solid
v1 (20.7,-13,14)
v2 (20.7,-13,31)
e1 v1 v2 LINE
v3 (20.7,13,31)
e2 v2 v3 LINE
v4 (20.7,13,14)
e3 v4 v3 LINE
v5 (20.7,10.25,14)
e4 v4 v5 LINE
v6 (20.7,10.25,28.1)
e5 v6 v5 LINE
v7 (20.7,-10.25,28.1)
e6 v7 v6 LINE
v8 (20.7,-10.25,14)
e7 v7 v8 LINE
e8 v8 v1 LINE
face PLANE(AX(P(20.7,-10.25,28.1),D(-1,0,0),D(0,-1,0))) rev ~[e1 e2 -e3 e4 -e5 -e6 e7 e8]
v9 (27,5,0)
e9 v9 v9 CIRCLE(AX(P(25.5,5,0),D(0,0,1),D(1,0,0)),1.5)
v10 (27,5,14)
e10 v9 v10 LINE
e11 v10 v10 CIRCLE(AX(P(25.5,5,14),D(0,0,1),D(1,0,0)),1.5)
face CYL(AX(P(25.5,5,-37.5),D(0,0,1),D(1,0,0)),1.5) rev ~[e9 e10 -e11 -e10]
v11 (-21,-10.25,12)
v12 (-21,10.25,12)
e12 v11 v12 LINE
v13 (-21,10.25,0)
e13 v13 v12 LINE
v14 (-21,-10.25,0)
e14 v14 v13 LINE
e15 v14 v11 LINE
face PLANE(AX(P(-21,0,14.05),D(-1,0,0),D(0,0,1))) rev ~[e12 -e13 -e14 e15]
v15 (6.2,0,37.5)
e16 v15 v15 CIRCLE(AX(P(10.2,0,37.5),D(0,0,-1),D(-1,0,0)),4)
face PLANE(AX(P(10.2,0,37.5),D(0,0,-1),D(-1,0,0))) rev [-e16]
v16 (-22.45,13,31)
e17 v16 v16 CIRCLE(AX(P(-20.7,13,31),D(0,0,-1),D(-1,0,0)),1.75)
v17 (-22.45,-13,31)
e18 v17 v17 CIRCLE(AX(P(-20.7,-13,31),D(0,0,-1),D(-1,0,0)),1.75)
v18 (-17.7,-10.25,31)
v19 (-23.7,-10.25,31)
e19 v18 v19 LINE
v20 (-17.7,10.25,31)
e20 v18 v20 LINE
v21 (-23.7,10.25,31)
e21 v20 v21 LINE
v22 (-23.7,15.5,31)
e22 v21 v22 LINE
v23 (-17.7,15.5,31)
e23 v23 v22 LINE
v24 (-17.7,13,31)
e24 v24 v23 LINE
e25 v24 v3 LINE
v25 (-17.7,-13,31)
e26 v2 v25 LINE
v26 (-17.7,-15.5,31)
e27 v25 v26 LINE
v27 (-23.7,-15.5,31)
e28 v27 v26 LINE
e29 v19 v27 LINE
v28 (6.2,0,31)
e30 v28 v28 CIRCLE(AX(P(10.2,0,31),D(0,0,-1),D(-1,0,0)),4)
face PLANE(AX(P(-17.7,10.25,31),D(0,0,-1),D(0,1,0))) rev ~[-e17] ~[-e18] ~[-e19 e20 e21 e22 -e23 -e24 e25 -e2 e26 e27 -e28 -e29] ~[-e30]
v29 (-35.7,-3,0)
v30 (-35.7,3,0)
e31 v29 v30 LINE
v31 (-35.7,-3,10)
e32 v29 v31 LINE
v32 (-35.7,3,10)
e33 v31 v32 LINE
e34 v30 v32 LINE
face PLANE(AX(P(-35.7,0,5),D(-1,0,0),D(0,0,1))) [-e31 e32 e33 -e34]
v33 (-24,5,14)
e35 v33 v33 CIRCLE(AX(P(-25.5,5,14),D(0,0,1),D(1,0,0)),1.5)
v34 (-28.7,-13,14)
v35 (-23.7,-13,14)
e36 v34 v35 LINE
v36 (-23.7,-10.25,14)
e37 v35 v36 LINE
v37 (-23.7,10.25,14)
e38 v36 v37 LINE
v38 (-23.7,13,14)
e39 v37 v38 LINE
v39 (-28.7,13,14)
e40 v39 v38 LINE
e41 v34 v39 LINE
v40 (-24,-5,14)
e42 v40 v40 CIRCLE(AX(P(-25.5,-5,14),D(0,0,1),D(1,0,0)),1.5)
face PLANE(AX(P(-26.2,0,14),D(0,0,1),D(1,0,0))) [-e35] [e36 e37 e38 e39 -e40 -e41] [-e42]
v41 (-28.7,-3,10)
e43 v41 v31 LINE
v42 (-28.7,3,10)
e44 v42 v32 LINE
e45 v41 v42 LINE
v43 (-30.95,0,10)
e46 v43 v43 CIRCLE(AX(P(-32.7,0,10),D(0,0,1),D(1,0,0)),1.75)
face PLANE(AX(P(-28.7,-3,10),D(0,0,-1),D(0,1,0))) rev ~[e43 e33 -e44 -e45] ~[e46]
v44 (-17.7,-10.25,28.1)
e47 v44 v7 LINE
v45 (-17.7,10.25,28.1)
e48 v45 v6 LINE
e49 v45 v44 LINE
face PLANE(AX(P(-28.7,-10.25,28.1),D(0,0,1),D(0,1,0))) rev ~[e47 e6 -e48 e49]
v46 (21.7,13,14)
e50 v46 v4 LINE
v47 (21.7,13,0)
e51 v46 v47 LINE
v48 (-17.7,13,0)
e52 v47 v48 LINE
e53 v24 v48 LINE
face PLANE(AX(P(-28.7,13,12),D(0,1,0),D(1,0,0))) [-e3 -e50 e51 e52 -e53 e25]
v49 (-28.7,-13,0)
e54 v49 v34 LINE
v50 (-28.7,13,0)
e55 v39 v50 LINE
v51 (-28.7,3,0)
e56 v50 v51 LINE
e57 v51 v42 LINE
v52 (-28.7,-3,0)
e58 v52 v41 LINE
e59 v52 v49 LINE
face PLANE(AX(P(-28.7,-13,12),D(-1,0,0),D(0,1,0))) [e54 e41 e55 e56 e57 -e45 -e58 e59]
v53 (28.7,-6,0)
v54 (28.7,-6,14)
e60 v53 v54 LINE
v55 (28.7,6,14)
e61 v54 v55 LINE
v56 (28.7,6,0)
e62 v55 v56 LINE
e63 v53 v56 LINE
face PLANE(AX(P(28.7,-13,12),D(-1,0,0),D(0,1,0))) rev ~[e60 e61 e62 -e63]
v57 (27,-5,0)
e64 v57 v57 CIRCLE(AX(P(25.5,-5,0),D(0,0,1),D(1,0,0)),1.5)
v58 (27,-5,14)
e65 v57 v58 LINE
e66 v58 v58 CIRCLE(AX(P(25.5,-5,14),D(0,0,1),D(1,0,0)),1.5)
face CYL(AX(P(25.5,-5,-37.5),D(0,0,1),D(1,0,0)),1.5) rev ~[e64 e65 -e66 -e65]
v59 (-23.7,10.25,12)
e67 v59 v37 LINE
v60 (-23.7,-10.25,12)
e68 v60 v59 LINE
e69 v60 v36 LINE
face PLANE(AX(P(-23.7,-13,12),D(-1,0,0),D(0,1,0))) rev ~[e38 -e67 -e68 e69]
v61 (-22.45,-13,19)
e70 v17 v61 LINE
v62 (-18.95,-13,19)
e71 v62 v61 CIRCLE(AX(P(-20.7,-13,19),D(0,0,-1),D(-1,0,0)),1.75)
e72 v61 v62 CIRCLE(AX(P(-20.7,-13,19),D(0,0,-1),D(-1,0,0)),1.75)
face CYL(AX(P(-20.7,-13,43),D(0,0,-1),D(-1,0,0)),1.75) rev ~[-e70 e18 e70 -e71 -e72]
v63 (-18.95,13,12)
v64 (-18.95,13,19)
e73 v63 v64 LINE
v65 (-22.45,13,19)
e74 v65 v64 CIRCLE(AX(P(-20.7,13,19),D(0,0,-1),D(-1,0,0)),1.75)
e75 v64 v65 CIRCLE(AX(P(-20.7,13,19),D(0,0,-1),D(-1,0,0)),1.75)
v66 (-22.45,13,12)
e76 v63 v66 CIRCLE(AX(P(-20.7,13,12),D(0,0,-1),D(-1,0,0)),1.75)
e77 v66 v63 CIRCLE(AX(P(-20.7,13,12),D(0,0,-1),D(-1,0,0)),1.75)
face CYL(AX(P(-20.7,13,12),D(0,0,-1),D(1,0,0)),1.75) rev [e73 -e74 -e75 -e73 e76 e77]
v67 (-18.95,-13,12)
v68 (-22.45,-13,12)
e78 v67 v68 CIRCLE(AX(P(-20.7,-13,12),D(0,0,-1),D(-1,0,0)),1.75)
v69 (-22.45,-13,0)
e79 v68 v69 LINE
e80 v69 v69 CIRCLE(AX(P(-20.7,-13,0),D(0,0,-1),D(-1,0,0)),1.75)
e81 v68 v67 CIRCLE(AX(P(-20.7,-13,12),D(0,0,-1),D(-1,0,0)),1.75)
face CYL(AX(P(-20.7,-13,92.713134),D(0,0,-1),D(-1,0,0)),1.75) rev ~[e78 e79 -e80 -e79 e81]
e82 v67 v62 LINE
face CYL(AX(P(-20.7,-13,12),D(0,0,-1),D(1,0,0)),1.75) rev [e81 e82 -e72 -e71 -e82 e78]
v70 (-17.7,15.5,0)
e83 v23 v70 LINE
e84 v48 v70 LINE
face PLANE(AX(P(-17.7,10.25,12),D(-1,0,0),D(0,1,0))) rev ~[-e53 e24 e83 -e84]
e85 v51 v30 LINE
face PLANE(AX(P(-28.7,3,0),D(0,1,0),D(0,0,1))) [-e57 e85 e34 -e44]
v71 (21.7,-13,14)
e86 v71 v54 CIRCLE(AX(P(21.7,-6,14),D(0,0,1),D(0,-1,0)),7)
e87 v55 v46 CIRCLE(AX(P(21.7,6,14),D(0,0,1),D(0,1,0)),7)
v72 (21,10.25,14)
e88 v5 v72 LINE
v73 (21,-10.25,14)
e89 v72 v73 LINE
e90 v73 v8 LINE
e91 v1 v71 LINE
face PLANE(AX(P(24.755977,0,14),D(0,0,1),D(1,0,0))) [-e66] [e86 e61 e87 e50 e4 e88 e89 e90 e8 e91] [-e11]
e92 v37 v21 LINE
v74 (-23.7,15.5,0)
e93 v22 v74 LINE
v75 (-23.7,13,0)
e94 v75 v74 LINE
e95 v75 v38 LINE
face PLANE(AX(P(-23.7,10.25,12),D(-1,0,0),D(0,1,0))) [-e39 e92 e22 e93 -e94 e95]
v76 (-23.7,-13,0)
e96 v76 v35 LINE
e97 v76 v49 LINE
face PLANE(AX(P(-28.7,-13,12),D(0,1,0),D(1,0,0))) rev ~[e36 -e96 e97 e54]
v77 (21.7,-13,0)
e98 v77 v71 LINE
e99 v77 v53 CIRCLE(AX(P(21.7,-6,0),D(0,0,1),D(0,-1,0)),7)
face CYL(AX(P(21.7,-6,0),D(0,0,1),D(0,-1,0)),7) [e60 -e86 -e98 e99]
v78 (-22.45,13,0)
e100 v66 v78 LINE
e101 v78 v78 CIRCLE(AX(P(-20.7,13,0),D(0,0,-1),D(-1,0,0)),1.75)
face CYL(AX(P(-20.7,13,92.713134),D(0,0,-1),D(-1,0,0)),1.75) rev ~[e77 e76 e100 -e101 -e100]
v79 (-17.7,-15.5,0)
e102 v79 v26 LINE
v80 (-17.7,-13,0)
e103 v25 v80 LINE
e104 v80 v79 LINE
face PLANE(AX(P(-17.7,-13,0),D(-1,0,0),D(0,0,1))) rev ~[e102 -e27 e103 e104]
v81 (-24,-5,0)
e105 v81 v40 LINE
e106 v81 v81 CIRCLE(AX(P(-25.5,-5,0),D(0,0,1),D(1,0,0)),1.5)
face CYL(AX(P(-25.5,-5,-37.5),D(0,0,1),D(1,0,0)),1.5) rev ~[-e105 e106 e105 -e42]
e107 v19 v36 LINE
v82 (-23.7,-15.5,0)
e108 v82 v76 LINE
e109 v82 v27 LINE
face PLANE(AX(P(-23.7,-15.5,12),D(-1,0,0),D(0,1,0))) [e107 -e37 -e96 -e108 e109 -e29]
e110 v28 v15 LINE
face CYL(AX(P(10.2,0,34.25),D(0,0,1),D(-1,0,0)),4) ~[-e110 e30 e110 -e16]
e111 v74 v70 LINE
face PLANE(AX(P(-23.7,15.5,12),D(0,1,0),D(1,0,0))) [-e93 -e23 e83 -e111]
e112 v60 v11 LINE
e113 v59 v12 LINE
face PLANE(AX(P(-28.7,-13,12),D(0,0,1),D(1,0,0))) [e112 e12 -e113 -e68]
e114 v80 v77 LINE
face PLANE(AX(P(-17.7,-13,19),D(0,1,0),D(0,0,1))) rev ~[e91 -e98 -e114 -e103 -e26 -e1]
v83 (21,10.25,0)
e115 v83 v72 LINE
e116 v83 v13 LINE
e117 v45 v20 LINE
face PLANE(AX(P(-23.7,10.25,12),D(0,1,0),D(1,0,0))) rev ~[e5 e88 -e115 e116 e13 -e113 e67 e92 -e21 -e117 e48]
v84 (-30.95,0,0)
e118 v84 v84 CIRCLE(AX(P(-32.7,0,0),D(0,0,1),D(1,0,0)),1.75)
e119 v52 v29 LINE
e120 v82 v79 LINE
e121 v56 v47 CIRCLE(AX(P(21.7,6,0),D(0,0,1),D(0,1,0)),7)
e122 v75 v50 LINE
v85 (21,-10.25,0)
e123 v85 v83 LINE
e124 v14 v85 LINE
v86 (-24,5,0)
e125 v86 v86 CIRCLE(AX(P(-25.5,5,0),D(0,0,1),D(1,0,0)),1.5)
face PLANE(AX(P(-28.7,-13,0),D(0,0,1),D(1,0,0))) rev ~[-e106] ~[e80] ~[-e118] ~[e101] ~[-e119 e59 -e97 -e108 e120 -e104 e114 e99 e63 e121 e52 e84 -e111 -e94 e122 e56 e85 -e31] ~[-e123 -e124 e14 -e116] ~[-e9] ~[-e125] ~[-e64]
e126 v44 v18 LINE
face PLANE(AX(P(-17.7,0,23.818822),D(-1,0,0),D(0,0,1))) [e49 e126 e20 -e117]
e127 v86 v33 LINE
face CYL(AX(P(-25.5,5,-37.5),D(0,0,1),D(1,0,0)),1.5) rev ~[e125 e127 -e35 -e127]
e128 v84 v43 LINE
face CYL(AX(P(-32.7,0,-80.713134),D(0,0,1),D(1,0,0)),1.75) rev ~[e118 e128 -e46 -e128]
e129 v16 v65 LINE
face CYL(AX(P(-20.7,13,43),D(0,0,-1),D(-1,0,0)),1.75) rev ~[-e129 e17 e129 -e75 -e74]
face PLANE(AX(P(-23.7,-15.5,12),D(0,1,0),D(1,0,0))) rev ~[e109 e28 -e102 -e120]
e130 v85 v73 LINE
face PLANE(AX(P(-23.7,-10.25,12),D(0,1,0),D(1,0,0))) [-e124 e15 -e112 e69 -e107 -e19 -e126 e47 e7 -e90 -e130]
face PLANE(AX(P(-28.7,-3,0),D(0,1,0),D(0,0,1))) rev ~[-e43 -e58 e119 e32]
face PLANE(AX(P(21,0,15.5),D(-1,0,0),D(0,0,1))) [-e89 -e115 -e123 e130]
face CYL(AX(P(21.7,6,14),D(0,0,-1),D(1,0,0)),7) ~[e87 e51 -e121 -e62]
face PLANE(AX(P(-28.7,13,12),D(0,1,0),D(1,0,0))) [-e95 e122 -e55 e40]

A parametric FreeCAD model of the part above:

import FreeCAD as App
import Part
import Sketcher
from FreeCAD import Vector
Q = App.Units.Quantity


def edges_at(feature, points):
    """Names of the edges that pass closest to the given points."""
    edges = feature.Shape.Edges
    near = lambda p: min(range(len(edges)), key=lambda i: edges[i].distToShape(Part.Vertex(*p))[0])
    return sorted({f"Edge{near(p) + 1}" for p in points})

doc = App.newDocument("Part")
params = doc.addObject("Spreadsheet::Sheet", "Params")
for row, (alias, value) in enumerate([
    ("sketch1_width", "57.4 mm"),
    ("sketch1_height", "28.5 mm"),
    ("pad1_length", "12 mm"),
    ("sketch2_height", "26 mm"),
    ("sketch2_width", "57.4 mm"),
    ("pad2_length", "19 mm"),
    ("sketch3_width", "20.5 mm"),
    ("sketch3_height", "16.1 mm"),
    ("pocket1_length", "7.7 mm"),
    ("sketch4_width", "20.5 mm"),
    ("sketch4_height", "28.1 mm"),
    ("pocket2_length", "41.7 mm"),
    ("sketch5_height", "31 mm"),
    ("sketch5_width", "20.5 mm"),
    ("pocket3_length", "0.3 mm"),
    ("sketch6_width", "8 mm"),
    ("sketch6_height", "26 mm"),
    ("sketch6_width2", "0.3 mm"),
    ("sketch6_height2", "20.5 mm"),
    ("pocket4_length", "2.9 mm"),
    ("sketch7_height", "12 mm"),
    ("sketch7_width", "2.5 mm"),
    ("pocket5_length", "46.4 mm"),
    ("sketch8_width", "26 mm"),
    ("sketch8_height", "19 mm"),
    ("sketch8_width2", "20.5 mm"),
    ("sketch8_height2", "16.1 mm"),
    ("pocket6_length", "7.7 mm"),
    ("sketch9_width", "8 mm"),
    ("sketch9_height", "26 mm"),
    ("sketch9_width2", "0.3 mm"),
    ("sketch9_height2", "20.5 mm"),
    ("pocket7_length", "14.1 mm"),
    ("sketch10_width", "26 mm"),
    ("sketch10_height", "19 mm"),
    ("sketch10_width2", "20.5 mm"),
    ("sketch10_height2", "16.1 mm"),
    ("pocket8_length", "3.3 mm"),
    ("sketch11_width", "11 mm"),
    ("sketch11_height", "12 mm"),
    ("pad3_length", "2.5 mm"),
    ("sketch12_height", "12 mm"),
    ("sketch12_width", "2.75 mm"),
    ("pad4_length", "6 mm"),
    ("sketch13_width", "6 mm"),
    ("sketch13_height", "12 mm"),
    ("pad5_length", "2.5 mm"),
    ("sketch14_height", "12 mm"),
    ("sketch14_width", "5.25 mm"),
    ("pad6_length", "6 mm"),
    ("sketch15_width", "5 mm"),
    ("sketch15_height", "2.5 mm"),
    ("sketch16_width", "5 mm"),
    ("sketch16_height", "2.5 mm"),
    ("sketch17_width", "5 mm"),
    ("sketch17_height", "26 mm"),
    ("pad7_length", "2 mm"),
    ("sketch18_width", "6 mm"),
    ("sketch18_height", "10 mm"),
    ("pad8_length", "7 mm"),
    ("sketch19_width", "4 mm"),
    ("sketch19_height", "6.5 mm"),
    ("revolution_angle", "360 deg"),
    ("sketch20_diameter", "3.5 mm"),
    ("hole_diameter", "3.5 mm"),
    ("hole_depth", "12 mm"),
    ("sketch21_diameter", "3.5 mm"),
    ("hole2_diameter", "3.5 mm"),
    ("sketch22_diameter", "3 mm"),
    ("hole3_diameter", "3 mm"),
    ("hole3_depth", "37.5 mm"),
    ("sketch23_diameter", "3.5 mm"),
    ("hole4_diameter", "3.5 mm"),
    ("fillet_radius", "7 mm"),
    ("sketch24_diameter", "3.5 mm"),
    ("sketch24_width", "6 mm"),
    ("sketch24_height", "5.25 mm"),
    ("pad9_length", "7 mm"),
], start=1):
    params.set(f"A{row}", alias)
    params.set(f"B{row}", "=" + value)
    params.setAlias(f"B{row}", alias)

body = doc.addObject("PartDesign::Body", "Body")

# Sketch on XY plane
sketch1 = doc.addObject("Sketcher::SketchObject", "Sketch")
body.addObject(sketch1)
sketch1.AttachmentSupport = (doc.XY_Plane, [""])
sketch1.MapMode = "FlatFace"
sketch1.AttachmentOffset = App.Placement(Vector(0, 0, 12), App.Rotation())
sketch1.addGeometry([
    Part.LineSegment(Vector(-28.7, 15.5, 0), Vector(-28.7, -13, 0)),
    Part.LineSegment(Vector(-28.7, -13, 0), Vector(28.7, -13, 0)),
    Part.LineSegment(Vector(28.7, -13, 0), Vector(28.7, 15.5, 0)),
    Part.LineSegment(Vector(28.7, 15.5, 0), Vector(-28.7, 15.5, 0)),
], False)
sketch1.addConstraint([
    Sketcher.Constraint("Coincident", 0, 2, 1, 1),
    Sketcher.Constraint("Coincident", 1, 2, 2, 1),
    Sketcher.Constraint("Coincident", 2, 2, 3, 1),
    Sketcher.Constraint("Coincident", 3, 2, 0, 1),
    Sketcher.Constraint("Vertical", 0),
    Sketcher.Constraint("Horizontal", 1),
    Sketcher.Constraint("Vertical", 2),
    Sketcher.Constraint("Horizontal", 3),
    Sketcher.Constraint("DistanceX", 1, 1, 1, 2, Q("57.4 mm")),
    Sketcher.Constraint("DistanceY", 0, 2, 0, 1, Q("28.5 mm")),
    Sketcher.Constraint("DistanceY", 0, 2, -1, 1, Q("13 mm")),
    Sketcher.Constraint("DistanceX", 0, 2, -1, 1, Q("28.7 mm")),
])
sketch1.setExpression("Constraints[8]", "Params.sketch1_width")
sketch1.setExpression("Constraints[9]", "Params.sketch1_height")
pad1 = doc.addObject("PartDesign::Pad", "Pad")
body.addObject(pad1)
pad1.Profile = sketch1
pad1.setExpression("Length", "Params.pad1_length")
pad1.Reversed = True

# Sketch on XY plane
sketch2 = doc.addObject("Sketcher::SketchObject", "Sketch001")
body.addObject(sketch2)
sketch2.AttachmentSupport = (doc.XY_Plane, [""])
sketch2.MapMode = "FlatFace"
sketch2.AttachmentOffset = App.Placement(Vector(0, 0, 12), App.Rotation())
sketch2.addGeometry([
    Part.LineSegment(Vector(-28.7, 13, 0), Vector(-28.7, -13, 0)),
    Part.LineSegment(Vector(-28.7, -13, 0), Vector(28.7, -13, 0)),
    Part.LineSegment(Vector(28.7, -13, 0), Vector(28.7, 13, 0)),
    Part.LineSegment(Vector(28.7, 13, 0), Vector(-28.7, 13, 0)),
], False)
sketch2.addConstraint([
    Sketcher.Constraint("Coincident", 0, 2, 1, 1),
    Sketcher.Constraint("Coincident", 1, 2, 2, 1),
    Sketcher.Constraint("Coincident", 2, 2, 3, 1),
    Sketcher.Constraint("Coincident", 3, 2, 0, 1),
    Sketcher.Constraint("Vertical", 0),
    Sketcher.Constraint("Horizontal", 1),
    Sketcher.Constraint("Vertical", 2),
    Sketcher.Constraint("Horizontal", 3),
    Sketcher.Constraint("Symmetric", 0, 2, 2, 2, -1, 1),
    Sketcher.Constraint("DistanceY", 0, 2, 0, 1, Q("26 mm")),
    Sketcher.Constraint("DistanceX", 1, 1, 1, 2, Q("57.4 mm")),
])
sketch2.setExpression("Constraints[9]", "Params.sketch2_height")
sketch2.setExpression("Constraints[10]", "Params.sketch2_width")
pad2 = doc.addObject("PartDesign::Pad", "Pad001")
body.addObject(pad2)
pad2.Profile = sketch2
pad2.setExpression("Length", "Params.pad2_length")

# Sketch on YZ plane
sketch3 = doc.addObject("Sketcher::SketchObject", "Sketch002")
body.addObject(sketch3)
sketch3.AttachmentSupport = (doc.YZ_Plane, [""])
sketch3.MapMode = "FlatFace"
sketch3.AttachmentOffset = App.Placement(Vector(0, 0, -28.7), App.Rotation())
sketch3.addGeometry([
    Part.LineSegment(Vector(10.25, 12, 0), Vector(-10.25, 12, 0)),
    Part.LineSegment(Vector(-10.25, 12, 0), Vector(-10.25, 28.1, 0)),
    Part.LineSegment(Vector(-10.25, 28.1, 0), Vector(10.25, 28.1, 0)),
    Part.LineSegment(Vector(10.25, 28.1, 0), Vector(10.25, 12, 0)),
], False)
sketch3.addConstraint([
    Sketcher.Constraint("Coincident", 0, 2, 1, 1),
    Sketcher.Constraint("Coincident", 1, 2, 2, 1),
    Sketcher.Constraint("Coincident", 2, 2, 3, 1),
    Sketcher.Constraint("Coincident", 3, 2, 0, 1),
    Sketcher.Constraint("Horizontal", 0),
    Sketcher.Constraint("Vertical", 1),
    Sketcher.Constraint("Horizontal", 2),
    Sketcher.Constraint("Vertical", 3),
    Sketcher.Constraint("DistanceX", 0, 2, 0, 1, Q("20.5 mm")),
    Sketcher.Constraint("DistanceY", 1, 1, 1, 2, Q("16.1 mm")),
    Sketcher.Constraint("DistanceY", -1, 1, 0, 2, Q("12 mm")),
    Sketcher.Constraint("DistanceX", 0, 2, -1, 1, Q("10.25 mm")),
])
sketch3.setExpression("Constraints[8]", "Params.sketch3_width")
sketch3.setExpression("Constraints[9]", "Params.sketch3_height")
pocket1 = doc.addObject("PartDesign::Pocket", "Pocket")
body.addObject(pocket1)
pocket1.Profile = sketch3
pocket1.setExpression("Length", "Params.pocket1_length")
pocket1.Reversed = True

# Sketch on YZ plane
sketch4 = doc.addObject("Sketcher::SketchObject", "Sketch003")
body.addObject(sketch4)
sketch4.AttachmentSupport = (doc.YZ_Plane, [""])
sketch4.MapMode = "FlatFace"
sketch4.AttachmentOffset = App.Placement(Vector(0, 0, -21), App.Rotation())
sketch4.addGeometry([
    Part.LineSegment(Vector(10.25, 0, 0), Vector(-10.25, 0, 0)),
    Part.LineSegment(Vector(-10.25, 0, 0), Vector(-10.25, 28.1, 0)),
    Part.LineSegment(Vector(-10.25, 28.1, 0), Vector(10.25, 28.1, 0)),
    Part.LineSegment(Vector(10.25, 28.1, 0), Vector(10.25, 0, 0)),
], False)
sketch4.addConstraint([
    Sketcher.Constraint("Coincident", 0, 2, 1, 1),
    Sketcher.Constraint("Coincident", 1, 2, 2, 1),
    Sketcher.Constraint("Coincident", 2, 2, 3, 1),
    Sketcher.Constraint("Coincident", 3, 2, 0, 1),
    Sketcher.Constraint("Horizontal", 0),
    Sketcher.Constraint("Vertical", 1),
    Sketcher.Constraint("Horizontal", 2),
    Sketcher.Constraint("Vertical", 3),
    Sketcher.Constraint("Symmetric", 0, 2, 3, 2, -1, 1),
    Sketcher.Constraint("DistanceX", 0, 2, 0, 1, Q("20.5 mm")),
    Sketcher.Constraint("DistanceY", 1, 1, 1, 2, Q("28.1 mm")),
])
sketch4.setExpression("Constraints[9]", "Params.sketch4_width")
sketch4.setExpression("Constraints[10]", "Params.sketch4_height")
pocket2 = doc.addObject("PartDesign::Pocket", "Pocket001")
body.addObject(pocket2)
pocket2.Profile = sketch4
pocket2.setExpression("Length", "Params.pocket2_length")
pocket2.Reversed = True

# Sketch on YZ plane
sketch5 = doc.addObject("Sketcher::SketchObject", "Sketch004")
body.addObject(sketch5)
sketch5.AttachmentSupport = (doc.YZ_Plane, [""])
sketch5.MapMode = "FlatFace"
sketch5.AttachmentOffset = App.Placement(Vector(0, 0, 20.7), App.Rotation())
sketch5.addGeometry([
    Part.LineSegment(Vector(10.25, 0, 0), Vector(-10.25, 0, 0)),
    Part.LineSegment(Vector(-10.25, 0, 0), Vector(-10.25, 31, 0)),
    Part.LineSegment(Vector(-10.25, 31, 0), Vector(10.25, 31, 0)),
    Part.LineSegment(Vector(10.25, 31, 0), Vector(10.25, 0, 0)),
], False)
sketch5.addConstraint([
    Sketcher.Constraint("Coincident", 0, 2, 1, 1),
    Sketcher.Constraint("Coincident", 1, 2, 2, 1),
    Sketcher.Constraint("Coincident", 2, 2, 3, 1),
    Sketcher.Constraint("Coincident", 3, 2, 0, 1),
    Sketcher.Constraint("Horizontal", 0),
    Sketcher.Constraint("Vertical", 1),
    Sketcher.Constraint("Horizontal", 2),
    Sketcher.Constraint("Vertical", 3),
    Sketcher.Constraint("Symmetric", 0, 2, 3, 2, -1, 1),
    Sketcher.Constraint("DistanceY", 1, 1, 1, 2, Q("31 mm")),
    Sketcher.Constraint("DistanceX", 0, 2, 0, 1, Q("20.5 mm")),
])
sketch5.setExpression("Constraints[9]", "Params.sketch5_height")
sketch5.setExpression("Constraints[10]", "Params.sketch5_width")
pocket3 = doc.addObject("PartDesign::Pocket", "Pocket002")
body.addObject(pocket3)
pocket3.Profile = sketch5
pocket3.setExpression("Length", "Params.pocket3_length")
pocket3.Reversed = True

# Sketch on XY plane
sketch6 = doc.addObject("Sketcher::SketchObject", "Sketch005")
body.addObject(sketch6)
sketch6.AttachmentSupport = (doc.XY_Plane, [""])
sketch6.MapMode = "FlatFace"
sketch6.AttachmentOffset = App.Placement(Vector(0, 0, 31), App.Rotation())
sketch6.addGeometry([
    Part.LineSegment(Vector(28.7, -13, 0), Vector(28.7, 13, 0)),  # 0
    Part.LineSegment(Vector(28.7, 13, 0), Vector(20.7, 13, 0)),  # 1
    Part.LineSegment(Vector(20.7, 13, 0), Vector(20.7, 10.25, 0)),  # 2
    Part.LineSegment(Vector(20.7, 10.25, 0), Vector(21, 10.25, 0)),  # 3
    Part.LineSegment(Vector(21, 10.25, 0), Vector(21, -10.25, 0)),  # 4
    Part.LineSegment(Vector(21, -10.25, 0), Vector(20.7, -10.25, 0)),  # 5
    Part.LineSegment(Vector(20.7, -10.25, 0), Vector(20.7, -13, 0)),  # 6
    Part.LineSegment(Vector(20.7, -13, 0), Vector(28.7, -13, 0)),  # 7
], False)
sketch6.addConstraint([
    Sketcher.Constraint("Coincident", 0, 2, 1, 1),
    Sketcher.Constraint("Coincident", 1, 2, 2, 1),
    Sketcher.Constraint("Coincident", 2, 2, 3, 1),
    Sketcher.Constraint("Coincident", 3, 2, 4, 1),
    Sketcher.Constraint("Coincident", 4, 2, 5, 1),
    Sketcher.Constraint("Coincident", 5, 2, 6, 1),
    Sketcher.Constraint("Coincident", 6, 2, 7, 1),
    Sketcher.Constraint("Coincident", 7, 2, 0, 1),
    Sketcher.Constraint("Vertical", 0),
    Sketcher.Constraint("Horizontal", 1),
    Sketcher.Constraint("Vertical", 2),
    Sketcher.Constraint("Horizontal", 3),
    Sketcher.Constraint("Vertical", 4),
    Sketcher.Constraint("Horizontal", 5),
    Sketcher.Constraint("Vertical", 6),
    Sketcher.Constraint("Horizontal", 7),
    Sketcher.Constraint("Symmetric", 2, 2, 5, 2, -1),
    Sketcher.Constraint("Equal", 2, 6),
    Sketcher.Constraint("DistanceX", 1, 2, 1, 1, Q("8 mm")),
    Sketcher.Constraint("DistanceY", 0, 1, 0, 2, Q("26 mm")),
    Sketcher.Constraint("DistanceX", 3, 1, 3, 2, Q("0.3 mm")),
    Sketcher.Constraint("DistanceY", 4, 2, 4, 1, Q("20.5 mm")),
    Sketcher.Constraint("DistanceX", -1, 1, 3, 2, Q("21 mm")),
])
sketch6.setExpression("Constraints[18]", "Params.sketch6_width")
sketch6.setExpression("Constraints[19]", "Params.sketch6_height")
sketch6.setExpression("Constraints[20]", "Params.sketch6_width2")
sketch6.setExpression("Constraints[21]", "Params.sketch6_height2")
pocket4 = doc.addObject("PartDesign::Pocket", "Pocket003")
body.addObject(pocket4)
pocket4.Profile = sketch6
pocket4.setExpression("Length", "Params.pocket4_length")

# Sketch on YZ plane
sketch7 = doc.addObject("Sketcher::SketchObject", "Sketch006")
body.addObject(sketch7)
sketch7.AttachmentSupport = (doc.YZ_Plane, [""])
sketch7.MapMode = "FlatFace"
sketch7.AttachmentOffset = App.Placement(Vector(0, 0, 28.7), App.Rotation())
sketch7.addGeometry([
    Part.LineSegment(Vector(15.5, 12, 0), Vector(13, 12, 0)),
    Part.LineSegment(Vector(13, 12, 0), Vector(13, 0, 0)),
    Part.LineSegment(Vector(13, 0, 0), Vector(15.5, 0, 0)),
    Part.LineSegment(Vector(15.5, 0, 0), Vector(15.5, 12, 0)),
], False)
sketch7.addConstraint([
    Sketcher.Constraint("Coincident", 0, 2, 1, 1),
    Sketcher.Constraint("Coincident", 1, 2, 2, 1),
    Sketcher.Constraint("Coincident", 2, 2, 3, 1),
    Sketcher.Constraint("Coincident", 3, 2, 0, 1),
    Sketcher.Constraint("Horizontal", 0),
    Sketcher.Constraint("Vertical", 1),
    Sketcher.Constraint("Horizontal", 2),
    Sketcher.Constraint("Vertical", 3),
    Sketcher.Constraint("PointOnObject", 1, 2, -1),
    Sketcher.Constraint("DistanceY", 1, 2, 1, 1, Q("12 mm")),
    Sketcher.Constraint("DistanceX", 0, 2, 0, 1, Q("2.5 mm")),
    Sketcher.Constraint("DistanceX", -1, 1, 0, 2, Q("13 mm")),
])
sketch7.setExpression("Constraints[9]", "Params.sketch7_height")
sketch7.setExpression("Constraints[10]", "Params.sketch7_width")
pocket5 = doc.addObject("PartDesign::Pocket", "Pocket004")
body.addObject(pocket5)
pocket5.Profile = sketch7
pocket5.setExpression("Length", "Params.pocket5_length")

# Sketch on YZ plane
sketch8 = doc.addObject("Sketcher::SketchObject", "Sketch007")
body.addObject(sketch8)
sketch8.AttachmentSupport = (doc.YZ_Plane, [""])
sketch8.MapMode = "FlatFace"
sketch8.AttachmentOffset = App.Placement(Vector(0, 0, -28.7), App.Rotation())
sketch8.addGeometry([
    Part.LineSegment(Vector(-13, 12, 0), Vector(-13, 31, 0)),  # 0
    Part.LineSegment(Vector(-13, 31, 0), Vector(13, 31, 0)),  # 1
    Part.LineSegment(Vector(13, 31, 0), Vector(13, 12, 0)),  # 2
    Part.LineSegment(Vector(13, 12, 0), Vector(10.25, 12, 0)),  # 3
    Part.LineSegment(Vector(10.25, 12, 0), Vector(10.25, 28.1, 0)),  # 4
    Part.LineSegment(Vector(10.25, 28.1, 0), Vector(-10.25, 28.1, 0)),  # 5
    Part.LineSegment(Vector(-10.25, 28.1, 0), Vector(-10.25, 12, 0)),  # 6
    Part.LineSegment(Vector(-10.25, 12, 0), Vector(-13, 12, 0)),  # 7
], False)
sketch8.addConstraint([
    Sketcher.Constraint("Coincident", 0, 2, 1, 1),
    Sketcher.Constraint("Coincident", 1, 2, 2, 1),
    Sketcher.Constraint("Coincident", 2, 2, 3, 1),
    Sketcher.Constraint("Coincident", 3, 2, 4, 1),
    Sketcher.Constraint("Coincident", 4, 2, 5, 1),
    Sketcher.Constraint("Coincident", 5, 2, 6, 1),
    Sketcher.Constraint("Coincident", 6, 2, 7, 1),
    Sketcher.Constraint("Coincident", 7, 2, 0, 1),
    Sketcher.Constraint("Vertical", 0),
    Sketcher.Constraint("Horizontal", 1),
    Sketcher.Constraint("Vertical", 2),
    Sketcher.Constraint("Horizontal", 3),
    Sketcher.Constraint("Vertical", 4),
    Sketcher.Constraint("Horizontal", 5),
    Sketcher.Constraint("Vertical", 6),
    Sketcher.Constraint("Horizontal", 7),
    Sketcher.Constraint("Symmetric", 3, 2, 6, 2, -2),
    Sketcher.Constraint("Equal", 3, 7),
    Sketcher.Constraint("DistanceX", 1, 1, 1, 2, Q("26 mm")),
    Sketcher.Constraint("DistanceY", 0, 1, 0, 2, Q("19 mm")),
    Sketcher.Constraint("DistanceX", 5, 2, 5, 1, Q("20.5 mm")),
    Sketcher.Constraint("DistanceY", 4, 1, 4, 2, Q("16.1 mm")),
    Sketcher.Constraint("DistanceY", -1, 1, 0, 2, Q("31 mm")),
])
sketch8.setExpression("Constraints[18]", "Params.sketch8_width")
sketch8.setExpression("Constraints[19]", "Params.sketch8_height")
sketch8.setExpression("Constraints[20]", "Params.sketch8_width2")
sketch8.setExpression("Constraints[21]", "Params.sketch8_height2")
pocket6 = doc.addObject("PartDesign::Pocket", "Pocket005")
body.addObject(pocket6)
pocket6.Profile = sketch8
pocket6.setExpression("Length", "Params.pocket6_length")
pocket6.Reversed = True

# Sketch on XY plane
sketch9 = doc.addObject("Sketcher::SketchObject", "Sketch008")
body.addObject(sketch9)
sketch9.AttachmentSupport = (doc.XY_Plane, [""])
sketch9.MapMode = "FlatFace"
sketch9.AttachmentOffset = App.Placement(Vector(0, 0, 28.1), App.Rotation())
sketch9.addGeometry([
    Part.LineSegment(Vector(28.7, -13, 0), Vector(28.7, 13, 0)),  # 0
    Part.LineSegment(Vector(28.7, 13, 0), Vector(20.7, 13, 0)),  # 1
    Part.LineSegment(Vector(20.7, 13, 0), Vector(20.7, 10.25, 0)),  # 2
    Part.LineSegment(Vector(20.7, 10.25, 0), Vector(21, 10.25, 0)),  # 3
    Part.LineSegment(Vector(21, 10.25, 0), Vector(21, -10.25, 0)),  # 4
    Part.LineSegment(Vector(21, -10.25, 0), Vector(20.7, -10.25, 0)),  # 5
    Part.LineSegment(Vector(20.7, -10.25, 0), Vector(20.7, -13, 0)),  # 6
    Part.LineSegment(Vector(20.7, -13, 0), Vector(28.7, -13, 0)),  # 7
], False)
sketch9.addConstraint([
    Sketcher.Constraint("Coincident", 0, 2, 1, 1),
    Sketcher.Constraint("Coincident", 1, 2, 2, 1),
    Sketcher.Constraint("Coincident", 2, 2, 3, 1),
    Sketcher.Constraint("Coincident", 3, 2, 4, 1),
    Sketcher.Constraint("Coincident", 4, 2, 5, 1),
    Sketcher.Constraint("Coincident", 5, 2, 6, 1),
    Sketcher.Constraint("Coincident", 6, 2, 7, 1),
    Sketcher.Constraint("Coincident", 7, 2, 0, 1),
    Sketcher.Constraint("Vertical", 0),
    Sketcher.Constraint("Horizontal", 1),
    Sketcher.Constraint("Vertical", 2),
    Sketcher.Constraint("Horizontal", 3),
    Sketcher.Constraint("Vertical", 4),
    Sketcher.Constraint("Horizontal", 5),
    Sketcher.Constraint("Vertical", 6),
    Sketcher.Constraint("Horizontal", 7),
    Sketcher.Constraint("Symmetric", 2, 2, 5, 2, -1),
    Sketcher.Constraint("Equal", 2, 6),
    Sketcher.Constraint("DistanceX", 1, 2, 1, 1, Q("8 mm")),
    Sketcher.Constraint("DistanceY", 0, 1, 0, 2, Q("26 mm")),
    Sketcher.Constraint("DistanceX", 3, 1, 3, 2, Q("0.3 mm")),
    Sketcher.Constraint("DistanceY", 4, 2, 4, 1, Q("20.5 mm")),
    Sketcher.Constraint("DistanceX", -1, 1, 3, 2, Q("21 mm")),
])
sketch9.setExpression("Constraints[18]", "Params.sketch9_width")
sketch9.setExpression("Constraints[19]", "Params.sketch9_height")
sketch9.setExpression("Constraints[20]", "Params.sketch9_width2")
sketch9.setExpression("Constraints[21]", "Params.sketch9_height2")
pocket7 = doc.addObject("PartDesign::Pocket", "Pocket006")
body.addObject(pocket7)
pocket7.Profile = sketch9
pocket7.setExpression("Length", "Params.pocket7_length")

# Sketch on YZ plane
sketch10 = doc.addObject("Sketcher::SketchObject", "Sketch009")
body.addObject(sketch10)
sketch10.AttachmentSupport = (doc.YZ_Plane, [""])
sketch10.MapMode = "FlatFace"
sketch10.AttachmentOffset = App.Placement(Vector(0, 0, -21), App.Rotation())
sketch10.addGeometry([
    Part.LineSegment(Vector(-13, 12, 0), Vector(-13, 31, 0)),  # 0
    Part.LineSegment(Vector(-13, 31, 0), Vector(13, 31, 0)),  # 1
    Part.LineSegment(Vector(13, 31, 0), Vector(13, 12, 0)),  # 2
    Part.LineSegment(Vector(13, 12, 0), Vector(10.25, 12, 0)),  # 3
    Part.LineSegment(Vector(10.25, 12, 0), Vector(10.25, 28.1, 0)),  # 4
    Part.LineSegment(Vector(10.25, 28.1, 0), Vector(-10.25, 28.1, 0)),  # 5
    Part.LineSegment(Vector(-10.25, 28.1, 0), Vector(-10.25, 12, 0)),  # 6
    Part.LineSegment(Vector(-10.25, 12, 0), Vector(-13, 12, 0)),  # 7
], False)
sketch10.addConstraint([
    Sketcher.Constraint("Coincident", 0, 2, 1, 1),
    Sketcher.Constraint("Coincident", 1, 2, 2, 1),
    Sketcher.Constraint("Coincident", 2, 2, 3, 1),
    Sketcher.Constraint("Coincident", 3, 2, 4, 1),
    Sketcher.Constraint("Coincident", 4, 2, 5, 1),
    Sketcher.Constraint("Coincident", 5, 2, 6, 1),
    Sketcher.Constraint("Coincident", 6, 2, 7, 1),
    Sketcher.Constraint("Coincident", 7, 2, 0, 1),
    Sketcher.Constraint("Vertical", 0),
    Sketcher.Constraint("Horizontal", 1),
    Sketcher.Constraint("Vertical", 2),
    Sketcher.Constraint("Horizontal", 3),
    Sketcher.Constraint("Vertical", 4),
    Sketcher.Constraint("Horizontal", 5),
    Sketcher.Constraint("Vertical", 6),
    Sketcher.Constraint("Horizontal", 7),
    Sketcher.Constraint("Symmetric", 3, 2, 6, 2, -2),
    Sketcher.Constraint("Equal", 3, 7),
    Sketcher.Constraint("DistanceX", 1, 1, 1, 2, Q("26 mm")),
    Sketcher.Constraint("DistanceY", 0, 1, 0, 2, Q("19 mm")),
    Sketcher.Constraint("DistanceX", 5, 2, 5, 1, Q("20.5 mm")),
    Sketcher.Constraint("DistanceY", 4, 1, 4, 2, Q("16.1 mm")),
    Sketcher.Constraint("DistanceY", -1, 1, 0, 2, Q("31 mm")),
])
sketch10.setExpression("Constraints[18]", "Params.sketch10_width")
sketch10.setExpression("Constraints[19]", "Params.sketch10_height")
sketch10.setExpression("Constraints[20]", "Params.sketch10_width2")
sketch10.setExpression("Constraints[21]", "Params.sketch10_height2")
pocket8 = doc.addObject("PartDesign::Pocket", "Pocket007")
body.addObject(pocket8)
pocket8.Profile = sketch10
pocket8.setExpression("Length", "Params.pocket8_length")
pocket8.Reversed = True

# Sketch on XZ plane
sketch11 = doc.addObject("Sketcher::SketchObject", "Sketch010")
body.addObject(sketch11)
sketch11.AttachmentSupport = (doc.XZ_Plane, [""])
sketch11.MapMode = "FlatFace"
sketch11.AttachmentOffset = App.Placement(Vector(0, 0, 13), App.Rotation())
sketch11.addGeometry([
    Part.LineSegment(Vector(-28.7, 12, 0), Vector(-28.7, 0, 0)),
    Part.LineSegment(Vector(-28.7, 0, 0), Vector(-17.7, 0, 0)),
    Part.LineSegment(Vector(-17.7, 0, 0), Vector(-17.7, 12, 0)),
    Part.LineSegment(Vector(-17.7, 12, 0), Vector(-28.7, 12, 0)),
], False)
sketch11.addConstraint([
    Sketcher.Constraint("Coincident", 0, 2, 1, 1),
    Sketcher.Constraint("Coincident", 1, 2, 2, 1),
    Sketcher.Constraint("Coincident", 2, 2, 3, 1),
    Sketcher.Constraint("Coincident", 3, 2, 0, 1),
    Sketcher.Constraint("Vertical", 0),
    Sketcher.Constraint("Horizontal", 1),
    Sketcher.Constraint("Vertical", 2),
    Sketcher.Constraint("Horizontal", 3),
    Sketcher.Constraint("PointOnObject", 0, 2, -1),
    Sketcher.Constraint("DistanceX", 1, 1, 1, 2, Q("11 mm")),
    Sketcher.Constraint("DistanceY", 0, 2, 0, 1, Q("12 mm")),
    Sketcher.Constraint("DistanceX", 0, 2, -1, 1, Q("28.7 mm")),
])
sketch11.setExpression("Constraints[9]", "Params.sketch11_width")
sketch11.setExpression("Constraints[10]", "Params.sketch11_height")
pad3 = doc.addObject("PartDesign::Pad", "Pad002")
body.addObject(pad3)
pad3.Profile = sketch11
pad3.setExpression("Length", "Params.pad3_length")

# Sketch on YZ plane
sketch12 = doc.addObject("Sketcher::SketchObject", "Sketch011")
body.addObject(sketch12)
sketch12.AttachmentSupport = (doc.YZ_Plane, [""])
sketch12.MapMode = "FlatFace"
sketch12.AttachmentOffset = App.Placement(Vector(0, 0, -17.7), App.Rotation())
sketch12.addGeometry([
    Part.LineSegment(Vector(-10.25, 19, 0), Vector(-13, 19, 0)),
    Part.LineSegment(Vector(-13, 19, 0), Vector(-13, 31, 0)),
    Part.LineSegment(Vector(-13, 31, 0), Vector(-10.25, 31, 0)),
    Part.LineSegment(Vector(-10.25, 31, 0), Vector(-10.25, 19, 0)),
], False)
sketch12.addConstraint([
    Sketcher.Constraint("Coincident", 0, 2, 1, 1),
    Sketcher.Constraint("Coincident", 1, 2, 2, 1),
    Sketcher.Constraint("Coincident", 2, 2, 3, 1),
    Sketcher.Constraint("Coincident", 3, 2, 0, 1),
    Sketcher.Constraint("Horizontal", 0),
    Sketcher.Constraint("Vertical", 1),
    Sketcher.Constraint("Horizontal", 2),
    Sketcher.Constraint("Vertical", 3),
    Sketcher.Constraint("DistanceY", 1, 1, 1, 2, Q("12 mm")),
    Sketcher.Constraint("DistanceX", 0, 2, -1, 1, Q("13 mm")),
    Sketcher.Constraint("DistanceY", -1, 1, 0, 2, Q("19 mm")),
    Sketcher.Constraint("DistanceX", 0, 2, 0, 1, Q("2.75 mm")),
])
sketch12.setExpression("Constraints[8]", "Params.sketch12_height")
sketch12.setExpression("Constraints[11]", "Params.sketch12_width")
pad4 = doc.addObject("PartDesign::Pad", "Pad003")
body.addObject(pad4)
pad4.Profile = sketch12
pad4.setExpression("Length", "Params.pad4_length")
pad4.Reversed = True

# Sketch on XZ plane
sketch13 = doc.addObject("Sketcher::SketchObject", "Sketch012")
body.addObject(sketch13)
sketch13.AttachmentSupport = (doc.XZ_Plane, [""])
sketch13.MapMode = "FlatFace"
sketch13.AttachmentOffset = App.Placement(Vector(0, 0, 13), App.Rotation())
sketch13.addGeometry([
    Part.LineSegment(Vector(-23.7, 31, 0), Vector(-23.7, 19, 0)),
    Part.LineSegment(Vector(-23.7, 19, 0), Vector(-17.7, 19, 0)),
    Part.LineSegment(Vector(-17.7, 19, 0), Vector(-17.7, 31, 0)),
    Part.LineSegment(Vector(-17.7, 31, 0), Vector(-23.7, 31, 0)),
], False)
sketch13.addConstraint([
    Sketcher.Constraint("Coincident", 0, 2, 1, 1),
    Sketcher.Constraint("Coincident", 1, 2, 2, 1),
    Sketcher.Constraint("Coincident", 2, 2, 3, 1),
    Sketcher.Constraint("Coincident", 3, 2, 0, 1),
    Sketcher.Constraint("Vertical", 0),
    Sketcher.Constraint("Horizontal", 1),
    Sketcher.Constraint("Vertical", 2),
    Sketcher.Constraint("Horizontal", 3),
    Sketcher.Constraint("DistanceX", 1, 1, 1, 2, Q("6 mm")),
    Sketcher.Constraint("DistanceY", 0, 2, 0, 1, Q("12 mm")),
    Sketcher.Constraint("DistanceY", -1, 1, 0, 2, Q("19 mm")),
    Sketcher.Constraint("DistanceX", 0, 2, -1, 1, Q("23.7 mm")),
])
sketch13.setExpression("Constraints[8]", "Params.sketch13_width")
sketch13.setExpression("Constraints[9]", "Params.sketch13_height")
pad5 = doc.addObject("PartDesign::Pad", "Pad004")
body.addObject(pad5)
pad5.Profile = sketch13
pad5.setExpression("Length", "Params.pad5_length")

# Sketch on YZ plane
sketch14 = doc.addObject("Sketcher::SketchObject", "Sketch013")
body.addObject(sketch14)
sketch14.AttachmentSupport = (doc.YZ_Plane, [""])
sketch14.MapMode = "FlatFace"
sketch14.AttachmentOffset = App.Placement(Vector(0, 0, -17.7), App.Rotation())
sketch14.addGeometry([
    Part.LineSegment(Vector(15.5, 19, 0), Vector(10.25, 19, 0)),
    Part.LineSegment(Vector(10.25, 19, 0), Vector(10.25, 31, 0)),
    Part.LineSegment(Vector(10.25, 31, 0), Vector(15.5, 31, 0)),
    Part.LineSegment(Vector(15.5, 31, 0), Vector(15.5, 19, 0)),
], False)
sketch14.addConstraint([
    Sketcher.Constraint("Coincident", 0, 2, 1, 1),
    Sketcher.Constraint("Coincident", 1, 2, 2, 1),
    Sketcher.Constraint("Coincident", 2, 2, 3, 1),
    Sketcher.Constraint("Coincident", 3, 2, 0, 1),
    Sketcher.Constraint("Horizontal", 0),
    Sketcher.Constraint("Vertical", 1),
    Sketcher.Constraint("Horizontal", 2),
    Sketcher.Constraint("Vertical", 3),
    Sketcher.Constraint("DistanceY", 1, 1, 1, 2, Q("12 mm")),
    Sketcher.Constraint("DistanceY", -1, 1, 0, 2, Q("19 mm")),
    Sketcher.Constraint("DistanceX", 0, 2, 0, 1, Q("5.25 mm")),
    Sketcher.Constraint("DistanceX", -1, 1, 2, 2, Q("15.5 mm")),
])
sketch14.setExpression("Constraints[8]", "Params.sketch14_height")
sketch14.setExpression("Constraints[10]", "Params.sketch14_width")
pad6 = doc.addObject("PartDesign::Pad", "Pad005")
body.addObject(pad6)
pad6.Profile = sketch14
pad6.setExpression("Length", "Params.pad6_length")
pad6.Reversed = True

# Sketch on XY plane
sketch15 = doc.addObject("Sketcher::SketchObject", "Sketch014")
body.addObject(sketch15)
sketch15.AttachmentSupport = (doc.XY_Plane, [""])
sketch15.MapMode = "FlatFace"
sketch15.addGeometry([
    Part.LineSegment(Vector(-23.7, -13, 0), Vector(-23.7, -15.5, 0)),
    Part.LineSegment(Vector(-23.7, -15.5, 0), Vector(-28.7, -15.5, 0)),
    Part.LineSegment(Vector(-28.7, -15.5, 0), Vector(-28.7, -13, 0)),
    Part.LineSegment(Vector(-28.7, -13, 0), Vector(-23.7, -13, 0)),
], False)
sketch15.addConstraint([
    Sketcher.Constraint("Coincident", 0, 2, 1, 1),
    Sketcher.Constraint("Coincident", 1, 2, 2, 1),
    Sketcher.Constraint("Coincident", 2, 2, 3, 1),
    Sketcher.Constraint("Coincident", 3, 2, 0, 1),
    Sketcher.Constraint("Vertical", 0),
    Sketcher.Constraint("Horizontal", 1),
    Sketcher.Constraint("Vertical", 2),
    Sketcher.Constraint("Horizontal", 3),
    Sketcher.Constraint("DistanceX", 1, 2, 1, 1, Q("5 mm")),
    Sketcher.Constraint("DistanceY", 0, 2, 0, 1, Q("2.5 mm")),
    Sketcher.Constraint("DistanceY", 2, 2, -1, 1, Q("13 mm")),
    Sketcher.Constraint("DistanceX", 0, 2, -1, 1, Q("23.7 mm")),
])
sketch15.setExpression("Constraints[8]", "Params.sketch15_width")
sketch15.setExpression("Constraints[9]", "Params.sketch15_height")
pocket9 = doc.addObject("PartDesign::Pocket", "Pocket008")
body.addObject(pocket9)
pocket9.Profile = sketch15
pocket9.Type = "ThroughAll"
pocket9.Reversed = True

# Sketch on XY plane
sketch16 = doc.addObject("Sketcher::SketchObject", "Sketch015")
body.addObject(sketch16)
sketch16.AttachmentSupport = (doc.XY_Plane, [""])
sketch16.MapMode = "FlatFace"
sketch16.addGeometry([
    Part.LineSegment(Vector(-23.7, 15.5, 0), Vector(-23.7, 13, 0)),
    Part.LineSegment(Vector(-23.7, 13, 0), Vector(-28.7, 13, 0)),
    Part.LineSegment(Vector(-28.7, 13, 0), Vector(-28.7, 15.5, 0)),
    Part.LineSegment(Vector(-28.7, 15.5, 0), Vector(-23.7, 15.5, 0)),
], False)
sketch16.addConstraint([
    Sketcher.Constraint("Coincident", 0, 2, 1, 1),
    Sketcher.Constraint("Coincident", 1, 2, 2, 1),
    Sketcher.Constraint("Coincident", 2, 2, 3, 1),
    Sketcher.Constraint("Coincident", 3, 2, 0, 1),
    Sketcher.Constraint("Vertical", 0),
    Sketcher.Constraint("Horizontal", 1),
    Sketcher.Constraint("Vertical", 2),
    Sketcher.Constraint("Horizontal", 3),
    Sketcher.Constraint("DistanceX", 1, 2, 1, 1, Q("5 mm")),
    Sketcher.Constraint("DistanceY", 0, 2, 0, 1, Q("2.5 mm")),
    Sketcher.Constraint("DistanceY", -1, 1, 0, 2, Q("13 mm")),
    Sketcher.Constraint("DistanceX", 0, 2, -1, 1, Q("23.7 mm")),
])
sketch16.setExpression("Constraints[8]", "Params.sketch16_width")
sketch16.setExpression("Constraints[9]", "Params.sketch16_height")
pocket10 = doc.addObject("PartDesign::Pocket", "Pocket009")
body.addObject(pocket10)
pocket10.Profile = sketch16
pocket10.Type = "ThroughAll"
pocket10.Reversed = True

# Sketch on XY plane
sketch17 = doc.addObject("Sketcher::SketchObject", "Sketch016")
body.addObject(sketch17)
sketch17.AttachmentSupport = (doc.XY_Plane, [""])
sketch17.MapMode = "FlatFace"
sketch17.AttachmentOffset = App.Placement(Vector(0, 0, 12), App.Rotation())
sketch17.addGeometry([
    Part.LineSegment(Vector(-28.7, 13, 0), Vector(-28.7, -13, 0)),
    Part.LineSegment(Vector(-28.7, -13, 0), Vector(-23.7, -13, 0)),
    Part.LineSegment(Vector(-23.7, -13, 0), Vector(-23.7, 13, 0)),
    Part.LineSegment(Vector(-23.7, 13, 0), Vector(-28.7, 13, 0)),
], False)
sketch17.addConstraint([
    Sketcher.Constraint("Coincident", 0, 2, 1, 1),
    Sketcher.Constraint("Coincident", 1, 2, 2, 1),
    Sketcher.Constraint("Coincident", 2, 2, 3, 1),
    Sketcher.Constraint("Coincident", 3, 2, 0, 1),
    Sketcher.Constraint("Vertical", 0),
    Sketcher.Constraint("Horizontal", 1),
    Sketcher.Constraint("Vertical", 2),
    Sketcher.Constraint("Horizontal", 3),
    Sketcher.Constraint("DistanceX", 1, 1, 1, 2, Q("5 mm")),
    Sketcher.Constraint("DistanceY", 0, 2, 0, 1, Q("26 mm")),
    Sketcher.Constraint("DistanceY", 0, 2, -1, 1, Q("13 mm")),
    Sketcher.Constraint("DistanceX", 0, 2, -1, 1, Q("28.7 mm")),
])
sketch17.setExpression("Constraints[8]", "Params.sketch17_width")
sketch17.setExpression("Constraints[9]", "Params.sketch17_height")
pad7 = doc.addObject("PartDesign::Pad", "Pad006")
body.addObject(pad7)
pad7.Profile = sketch17
pad7.setExpression("Length", "Params.pad7_length")

# Sketch on YZ plane
sketch18 = doc.addObject("Sketcher::SketchObject", "Sketch017")
body.addObject(sketch18)
sketch18.AttachmentSupport = (doc.YZ_Plane, [""])
sketch18.MapMode = "FlatFace"
sketch18.AttachmentOffset = App.Placement(Vector(0, 0, -28.7), App.Rotation())
sketch18.addGeometry([
    Part.LineSegment(Vector(3, 0, 0), Vector(-3, 0, 0)),
    Part.LineSegment(Vector(-3, 0, 0), Vector(-3, 10, 0)),
    Part.LineSegment(Vector(-3, 10, 0), Vector(3, 10, 0)),
    Part.LineSegment(Vector(3, 10, 0), Vector(3, 0, 0)),
], False)
sketch18.addConstraint([
    Sketcher.Constraint("Coincident", 0, 2, 1, 1),
    Sketcher.Constraint("Coincident", 1, 2, 2, 1),
    Sketcher.Constraint("Coincident", 2, 2, 3, 1),
    Sketcher.Constraint("Coincident", 3, 2, 0, 1),
    Sketcher.Constraint("Horizontal", 0),
    Sketcher.Constraint("Vertical", 1),
    Sketcher.Constraint("Horizontal", 2),
    Sketcher.Constraint("Vertical", 3),
    Sketcher.Constraint("Symmetric", 0, 2, 3, 2, -1, 1),
    Sketcher.Constraint("DistanceX", 0, 2, 0, 1, Q("6 mm")),
    Sketcher.Constraint("DistanceY", 1, 1, 1, 2, Q("10 mm")),
])
sketch18.setExpression("Constraints[9]", "Params.sketch18_width")
sketch18.setExpression("Constraints[10]", "Params.sketch18_height")
pad8 = doc.addObject("PartDesign::Pad", "Pad007")
body.addObject(pad8)
pad8.Profile = sketch18
pad8.setExpression("Length", "Params.pad8_length")
pad8.Reversed = True

# Sketch on XZ plane
sketch19 = doc.addObject("Sketcher::SketchObject", "Sketch018")
body.addObject(sketch19)
sketch19.AttachmentSupport = (doc.XZ_Plane, [""])
sketch19.MapMode = "FlatFace"
sketch19.addGeometry([
    Part.LineSegment(Vector(10.2, 37.5, 0), Vector(10.2, 31, 0)),
    Part.LineSegment(Vector(10.2, 31, 0), Vector(14.2, 31, 0)),
    Part.LineSegment(Vector(14.2, 31, 0), Vector(14.2, 37.5, 0)),
    Part.LineSegment(Vector(14.2, 37.5, 0), Vector(10.2, 37.5, 0)),
], False)
sketch19.addGeometry(Part.LineSegment(Vector(10.2, 37.5, 0), Vector(10.2, 31, 0)), True)  # axis
sketch19.addConstraint([
    Sketcher.Constraint("Coincident", 0, 2, 1, 1),
    Sketcher.Constraint("Coincident", 1, 2, 2, 1),
    Sketcher.Constraint("Coincident", 2, 2, 3, 1),
    Sketcher.Constraint("Coincident", 3, 2, 0, 1),
    Sketcher.Constraint("Vertical", 0),
    Sketcher.Constraint("Horizontal", 1),
    Sketcher.Constraint("Vertical", 2),
    Sketcher.Constraint("Horizontal", 3),
    Sketcher.Constraint("Vertical", 4),
    Sketcher.Constraint("Coincident", 4, 1, 3, 2),
    Sketcher.Constraint("Horizontal", 1, 2, 4, 2),
    Sketcher.Constraint("DistanceX", 1, 1, 1, 2, Q("4 mm")),
    Sketcher.Constraint("DistanceY", 0, 2, 0, 1, Q("6.5 mm")),
    Sketcher.Constraint("DistanceY", -1, 1, 0, 2, Q("31 mm")),
    Sketcher.Constraint("DistanceX", -1, 1, 0, 2, Q("10.2 mm")),
])
sketch19.setExpression("Constraints[11]", "Params.sketch19_width")
sketch19.setExpression("Constraints[12]", "Params.sketch19_height")
revolution = doc.addObject("PartDesign::Revolution", "Revolution")
body.addObject(revolution)
revolution.Profile = sketch19
revolution.ReferenceAxis = (sketch19, ["Axis0"])
revolution.setExpression("Angle", "Params.revolution_angle")

# Sketch on XY plane
sketch20 = doc.addObject("Sketcher::SketchObject", "Sketch019")
body.addObject(sketch20)
sketch20.AttachmentSupport = (doc.XY_Plane, [""])
sketch20.MapMode = "FlatFace"
sketch20.AttachmentOffset = App.Placement(Vector(0, 0, 31), App.Rotation())
sketch20.addGeometry([
    Part.Circle(Vector(-20.7, 13, 0), Vector(0, 0, 1), 1.75),
    Part.Circle(Vector(-20.7, -13, 0), Vector(0, 0, 1), 1.75),
], False)
sketch20.addConstraint([
    Sketcher.Constraint("Equal", 0, 1),
    Sketcher.Constraint("Symmetric", 0, 3, 1, 3, -1),
    Sketcher.Constraint("Diameter", 0, Q("3.5 mm")),
    Sketcher.Constraint("DistanceY", -1, 1, 0, 3, Q("13 mm")),
    Sketcher.Constraint("DistanceX", 0, 3, -1, 1, Q("20.7 mm")),
])
sketch20.setExpression("Constraints[2]", "Params.sketch20_diameter")
doc.recompute()
hole = doc.addObject("PartDesign::Hole", "Hole")
body.addObject(hole)
hole.Profile = sketch20
hole.ThreadType = "None"
hole.setExpression("Diameter", "Params.hole_diameter")
hole.DepthType = "Dimension"
hole.setExpression("Depth", "Params.hole_depth")
hole.DrillPoint = "Flat"

# Sketch on XY plane
sketch21 = doc.addObject("Sketcher::SketchObject", "Sketch020")
body.addObject(sketch21)
sketch21.AttachmentSupport = (doc.XY_Plane, [""])
sketch21.MapMode = "FlatFace"
sketch21.addGeometry(Part.Circle(Vector(-32.7, 0, 0), Vector(0, 0, 1), 1.75), False)
sketch21.addConstraint([
    Sketcher.Constraint("PointOnObject", 0, 3, -1),
    Sketcher.Constraint("Diameter", 0, Q("3.5 mm")),
    Sketcher.Constraint("DistanceX", 0, 3, -1, 1, Q("32.7 mm")),
])
sketch21.setExpression("Constraints[1]", "Params.sketch21_diameter")
doc.recompute()
hole2 = doc.addObject("PartDesign::Hole", "Hole001")
body.addObject(hole2)
hole2.Profile = sketch21
hole2.ThreadType = "None"
hole2.setExpression("Diameter", "Params.hole2_diameter")
hole2.DepthType = "ThroughAll"
hole2.Reversed = True

# Sketch on XY plane
sketch22 = doc.addObject("Sketcher::SketchObject", "Sketch021")
body.addObject(sketch22)
sketch22.AttachmentSupport = (doc.XY_Plane, [""])
sketch22.MapMode = "FlatFace"
sketch22.addGeometry([
    Part.Circle(Vector(25.5, -5, 0), Vector(0, 0, 1), 1.5),
    Part.Circle(Vector(25.5, 5, 0), Vector(0, 0, 1), 1.5),
    Part.Circle(Vector(-25.5, -5, 0), Vector(0, 0, 1), 1.5),
    Part.Circle(Vector(-25.5, 5, 0), Vector(0, 0, 1), 1.5),
], False)
sketch22.addConstraint([
    Sketcher.Constraint("Equal", 0, 1),
    Sketcher.Constraint("Equal", 1, 2),
    Sketcher.Constraint("Equal", 2, 3),
    Sketcher.Constraint("Symmetric", 1, 3, 2, 3, -1, 1),
    Sketcher.Constraint("Symmetric", 0, 3, 3, 3, -1, 1),
    Sketcher.Constraint("Symmetric", 0, 3, 2, 3, -2),
    Sketcher.Constraint("Diameter", 0, Q("3 mm")),
    Sketcher.Constraint("DistanceY", 0, 3, -1, 1, Q("5 mm")),
    Sketcher.Constraint("DistanceX", 2, 3, 0, 3, Q("51 mm")),
])
sketch22.setExpression("Constraints[6]", "Params.sketch22_diameter")
doc.recompute()
hole3 = doc.addObject("PartDesign::Hole", "Hole002")
body.addObject(hole3)
hole3.Profile = sketch22
hole3.ThreadType = "None"
hole3.setExpression("Diameter", "Params.hole3_diameter")
hole3.DepthType = "Dimension"
hole3.setExpression("Depth", "Params.hole3_depth")
hole3.DrillPoint = "Flat"
hole3.Reversed = True

# Sketch on XY plane
sketch23 = doc.addObject("Sketcher::SketchObject", "Sketch022")
body.addObject(sketch23)
sketch23.AttachmentSupport = (doc.XY_Plane, [""])
sketch23.MapMode = "FlatFace"
sketch23.AttachmentOffset = App.Placement(Vector(0, 0, 12), App.Rotation())
sketch23.addGeometry([
    Part.Circle(Vector(-20.7, 13, 0), Vector(0, 0, 1), 1.75),
    Part.Circle(Vector(-20.7, -13, 0), Vector(0, 0, 1), 1.75),
], False)
sketch23.addConstraint([
    Sketcher.Constraint("Equal", 0, 1),
    Sketcher.Constraint("Symmetric", 0, 3, 1, 3, -1),
    Sketcher.Constraint("Diameter", 0, Q("3.5 mm")),
    Sketcher.Constraint("DistanceY", -1, 1, 0, 3, Q("13 mm")),
    Sketcher.Constraint("DistanceX", 0, 3, -1, 1, Q("20.7 mm")),
])
sketch23.setExpression("Constraints[2]", "Params.sketch23_diameter")
doc.recompute()
hole4 = doc.addObject("PartDesign::Hole", "Hole003")
body.addObject(hole4)
hole4.Profile = sketch23
hole4.ThreadType = "None"
hole4.setExpression("Diameter", "Params.hole4_diameter")
hole4.DepthType = "ThroughAll"
doc.recompute()

fillet = doc.addObject("PartDesign::Fillet", "Fillet")
body.addObject(fillet)
fillet.Base = (hole4, edges_at(hole4, [(28.7, 13, 7), (28.7, -13, 7)]))
fillet.setExpression("Radius", "Params.fillet_radius")

# Sketch on XY plane
sketch24 = doc.addObject("Sketcher::SketchObject", "Sketch023")
body.addObject(sketch24)
sketch24.AttachmentSupport = (doc.XY_Plane, [""])
sketch24.MapMode = "FlatFace"
sketch24.AttachmentOffset = App.Placement(Vector(0, 0, 12), App.Rotation())
sketch24.addGeometry([
    Part.LineSegment(Vector(-23.7, 15.5, 0), Vector(-23.7, 10.25, 0)),  # 0
    Part.LineSegment(Vector(-23.7, 10.25, 0), Vector(-17.7, 10.25, 0)),  # 1
    Part.LineSegment(Vector(-17.7, 10.25, 0), Vector(-17.7, 15.5, 0)),  # 2
    Part.LineSegment(Vector(-17.7, 15.5, 0), Vector(-23.7, 15.5, 0)),  # 3
    Part.Circle(Vector(-20.7, 13, 0), Vector(0, 0, 1), 1.75),  # 4
    Part.LineSegment(Vector(-23.7, -10.25, 0), Vector(-23.7, -15.5, 0)),  # 5
    Part.LineSegment(Vector(-23.7, -15.5, 0), Vector(-17.7, -15.5, 0)),  # 6
    Part.LineSegment(Vector(-17.7, -15.5, 0), Vector(-17.7, -10.25, 0)),  # 7
    Part.LineSegment(Vector(-17.7, -10.25, 0), Vector(-23.7, -10.25, 0)),  # 8
    Part.Circle(Vector(-20.7, -13, 0), Vector(0, 0, 1), 1.75),  # 9
], False)
sketch24.addConstraint([
    Sketcher.Constraint("Coincident", 0, 2, 1, 1),
    Sketcher.Constraint("Coincident", 1, 2, 2, 1),
    Sketcher.Constraint("Coincident", 2, 2, 3, 1),
    Sketcher.Constraint("Coincident", 3, 2, 0, 1),
    Sketcher.Constraint("Coincident", 5, 2, 6, 1),
    Sketcher.Constraint("Coincident", 6, 2, 7, 1),
    Sketcher.Constraint("Coincident", 7, 2, 8, 1),
    Sketcher.Constraint("Coincident", 8, 2, 5, 1),
    Sketcher.Constraint("Vertical", 0),
    Sketcher.Constraint("Horizontal", 1),
    Sketcher.Constraint("Vertical", 2),
    Sketcher.Constraint("Horizontal", 3),
    Sketcher.Constraint("Vertical", 5),
    Sketcher.Constraint("Horizontal", 6),
    Sketcher.Constraint("Vertical", 7),
    Sketcher.Constraint("Horizontal", 8),
    Sketcher.Constraint("Equal", 4, 9),
    Sketcher.Constraint("Symmetric", 4, 3, 9, 3, -1),
    Sketcher.Constraint("Symmetric", 3, 2, 5, 2, -1),
    Sketcher.Constraint("Symmetric", 1, 2, 7, 2, -1),
    Sketcher.Constraint("Diameter", 4, Q("3.5 mm")),
    Sketcher.Constraint("DistanceX", 1, 1, 1, 2, Q("6 mm")),
    Sketcher.Constraint("DistanceY", -1, 1, 4, 3, Q("13 mm")),
    Sketcher.Constraint("DistanceX", 0, 2, 4, 3, Q("3 mm")),
    Sketcher.Constraint("DistanceY", 5, 2, 3, 2, Q("31 mm")),
    Sketcher.Constraint("DistanceY", 0, 2, 0, 1, Q("5.25 mm")),
    Sketcher.Constraint("DistanceX", 4, 3, -1, 1, Q("20.7 mm")),
])
sketch24.setExpression("Constraints[20]", "Params.sketch24_diameter")
sketch24.setExpression("Constraints[21]", "Params.sketch24_width")
sketch24.setExpression("Constraints[25]", "Params.sketch24_height")
pad9 = doc.addObject("PartDesign::Pad", "Pad008")
body.addObject(pad9)
pad9.Profile = sketch24
pad9.setExpression("Length", "Params.pad9_length")

doc.recompute()
